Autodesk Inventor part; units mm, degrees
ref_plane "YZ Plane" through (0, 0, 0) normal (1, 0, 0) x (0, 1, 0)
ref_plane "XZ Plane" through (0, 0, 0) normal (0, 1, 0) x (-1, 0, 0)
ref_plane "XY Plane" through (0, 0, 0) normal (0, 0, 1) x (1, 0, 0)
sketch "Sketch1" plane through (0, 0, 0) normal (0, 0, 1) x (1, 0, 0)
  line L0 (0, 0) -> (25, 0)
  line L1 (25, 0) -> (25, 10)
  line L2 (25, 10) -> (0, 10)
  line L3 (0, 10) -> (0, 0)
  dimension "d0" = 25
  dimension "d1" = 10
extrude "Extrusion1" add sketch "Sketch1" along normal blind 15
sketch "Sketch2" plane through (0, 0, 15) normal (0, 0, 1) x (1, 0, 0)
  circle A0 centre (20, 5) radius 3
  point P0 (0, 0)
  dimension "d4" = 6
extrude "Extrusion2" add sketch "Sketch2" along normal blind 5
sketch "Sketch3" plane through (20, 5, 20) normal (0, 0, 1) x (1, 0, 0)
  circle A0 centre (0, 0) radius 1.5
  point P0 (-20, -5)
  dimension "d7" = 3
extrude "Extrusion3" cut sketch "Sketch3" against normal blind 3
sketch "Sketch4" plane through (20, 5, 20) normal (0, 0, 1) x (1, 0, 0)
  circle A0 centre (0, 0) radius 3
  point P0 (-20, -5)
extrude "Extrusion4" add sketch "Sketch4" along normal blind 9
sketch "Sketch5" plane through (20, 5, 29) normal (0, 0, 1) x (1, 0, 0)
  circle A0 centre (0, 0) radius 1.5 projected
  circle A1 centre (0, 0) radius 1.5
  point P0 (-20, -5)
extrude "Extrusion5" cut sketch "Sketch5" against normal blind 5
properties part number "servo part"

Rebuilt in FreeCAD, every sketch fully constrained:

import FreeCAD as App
import Part
import Sketcher
Q = App.Units.Quantity

doc = App.newDocument("Part")
params = doc.addObject("Spreadsheet::Sheet", "Params")
for row, (alias, value) in enumerate([
    ("sketch1_width", "25 mm"),
    ("sketch1_height", "10 mm"),
    ("pad1_length", "15 mm"),
    ("sketch2_diameter", "6 mm"),
    ("pad2_length", "5 mm"),
    ("sketch3_diameter", "3 mm"),
    ("pocket1_length", "3 mm"),
    ("sketch4_diameter", "6 mm"),
    ("pad3_length", "9 mm"),
    ("sketch5_diameter", "3 mm"),
    ("pocket2_length", "5 mm"),
], start=1):
    params.set(f"A{row}", alias)
    params.set(f"B{row}", "=" + value)
    params.setAlias(f"B{row}", alias)

body = doc.addObject("PartDesign::Body", "Body")

sketch1 = body.newObject("Sketcher::SketchObject", "Sketch")
sketch1.AttachmentSupport = (doc.getObject("XY_Plane"), [""])
sketch1.MapMode = "FlatFace"
sketch1.addGeometry([
    Part.LineSegment(App.Vector(0, 10, 0), App.Vector(0, 0, 0)),
    Part.LineSegment(App.Vector(0, 0, 0), App.Vector(25, 0, 0)),
    Part.LineSegment(App.Vector(25, 0, 0), App.Vector(25, 10, 0)),
    Part.LineSegment(App.Vector(25, 10, 0), App.Vector(0, 10, 0)),
], False)
sketch1.addConstraint([
    Sketcher.Constraint("Coincident", 0, 2, 1, 1),
    Sketcher.Constraint("Coincident", 1, 2, 2, 1),
    Sketcher.Constraint("Coincident", 2, 2, 3, 1),
    Sketcher.Constraint("Coincident", 3, 2, 0, 1),
    Sketcher.Constraint("Vertical", 0),
    Sketcher.Constraint("Horizontal", 1),
    Sketcher.Constraint("Vertical", 2),
    Sketcher.Constraint("Horizontal", 3),
    Sketcher.Constraint("Coincident", 0, 2, -1, 1),
    Sketcher.Constraint("DistanceX", 1, 1, 1, 2, Q("25 mm")),
    Sketcher.Constraint("DistanceY", 0, 2, 0, 1, Q("10 mm")),
])
sketch1.setExpression("Constraints[9]", "Params.sketch1_width")
sketch1.setExpression("Constraints[10]", "Params.sketch1_height")
pad1 = body.newObject("PartDesign::Pad", "Pad")
pad1.Profile = sketch1
pad1.setExpression("Length", "Params.pad1_length")

sketch2 = body.newObject("Sketcher::SketchObject", "Sketch001")
sketch2.AttachmentSupport = (doc.getObject("XY_Plane"), [""])
sketch2.MapMode = "FlatFace"
sketch2.AttachmentOffset = App.Placement(App.Vector(0, 0, 15), App.Rotation())
sketch2.addGeometry(Part.Circle(App.Vector(20, 5, 0), App.Vector(0, 0, 1), 3), False)
sketch2.addConstraint([
    Sketcher.Constraint("Diameter", 0, Q("6 mm")),
    Sketcher.Constraint("DistanceX", -1, 1, 0, 3, Q("20 mm")),
    Sketcher.Constraint("DistanceY", -1, 1, 0, 3, Q("5 mm")),
])
sketch2.setExpression("Constraints[0]", "Params.sketch2_diameter")
pad2 = body.newObject("PartDesign::Pad", "Pad001")
pad2.Profile = sketch2
pad2.setExpression("Length", "Params.pad2_length")

sketch3 = body.newObject("Sketcher::SketchObject", "Sketch002")
sketch3.AttachmentSupport = (doc.getObject("XY_Plane"), [""])
sketch3.MapMode = "FlatFace"
sketch3.AttachmentOffset = App.Placement(App.Vector(0, 0, 20), App.Rotation())
sketch3.addGeometry(Part.Circle(App.Vector(20, 5, 0), App.Vector(0, 0, 1), 1.5), False)
sketch3.addConstraint([
    Sketcher.Constraint("Diameter", 0, Q("3 mm")),
    Sketcher.Constraint("DistanceX", -1, 1, 0, 3, Q("20 mm")),
    Sketcher.Constraint("DistanceY", -1, 1, 0, 3, Q("5 mm")),
])
sketch3.setExpression("Constraints[0]", "Params.sketch3_diameter")
pocket1 = body.newObject("PartDesign::Pocket", "Pocket")
pocket1.Profile = sketch3
pocket1.setExpression("Length", "Params.pocket1_length")

sketch4 = body.newObject("Sketcher::SketchObject", "Sketch003")
sketch4.AttachmentSupport = (doc.getObject("XY_Plane"), [""])
sketch4.MapMode = "FlatFace"
sketch4.AttachmentOffset = App.Placement(App.Vector(0, 0, 20), App.Rotation())
sketch4.addGeometry(Part.Circle(App.Vector(20, 5, 0), App.Vector(0, 0, 1), 3), False)
sketch4.addConstraint([
    Sketcher.Constraint("Diameter", 0, Q("6 mm")),
    Sketcher.Constraint("DistanceX", -1, 1, 0, 3, Q("20 mm")),
    Sketcher.Constraint("DistanceY", -1, 1, 0, 3, Q("5 mm")),
])
sketch4.setExpression("Constraints[0]", "Params.sketch4_diameter")
pad3 = body.newObject("PartDesign::Pad", "Pad002")
pad3.Profile = sketch4
pad3.setExpression("Length", "Params.pad3_length")

sketch5 = body.newObject("Sketcher::SketchObject", "Sketch004")
sketch5.AttachmentSupport = (doc.getObject("XY_Plane"), [""])
sketch5.MapMode = "FlatFace"
sketch5.AttachmentOffset = App.Placement(App.Vector(0, 0, 29), App.Rotation())
sketch5.addGeometry(Part.Circle(App.Vector(20, 5, 0), App.Vector(0, 0, 1), 1.5), False)
sketch5.addConstraint([
    Sketcher.Constraint("Diameter", 0, Q("3 mm")),
    Sketcher.Constraint("DistanceX", -1, 1, 0, 3, Q("20 mm")),
    Sketcher.Constraint("DistanceY", -1, 1, 0, 3, Q("5 mm")),
])
sketch5.setExpression("Constraints[0]", "Params.sketch5_diameter")
pocket2 = body.newObject("PartDesign::Pocket", "Pocket001")
pocket2.Profile = sketch5
pocket2.setExpression("Length", "Params.pocket2_length")

doc.recompute()
